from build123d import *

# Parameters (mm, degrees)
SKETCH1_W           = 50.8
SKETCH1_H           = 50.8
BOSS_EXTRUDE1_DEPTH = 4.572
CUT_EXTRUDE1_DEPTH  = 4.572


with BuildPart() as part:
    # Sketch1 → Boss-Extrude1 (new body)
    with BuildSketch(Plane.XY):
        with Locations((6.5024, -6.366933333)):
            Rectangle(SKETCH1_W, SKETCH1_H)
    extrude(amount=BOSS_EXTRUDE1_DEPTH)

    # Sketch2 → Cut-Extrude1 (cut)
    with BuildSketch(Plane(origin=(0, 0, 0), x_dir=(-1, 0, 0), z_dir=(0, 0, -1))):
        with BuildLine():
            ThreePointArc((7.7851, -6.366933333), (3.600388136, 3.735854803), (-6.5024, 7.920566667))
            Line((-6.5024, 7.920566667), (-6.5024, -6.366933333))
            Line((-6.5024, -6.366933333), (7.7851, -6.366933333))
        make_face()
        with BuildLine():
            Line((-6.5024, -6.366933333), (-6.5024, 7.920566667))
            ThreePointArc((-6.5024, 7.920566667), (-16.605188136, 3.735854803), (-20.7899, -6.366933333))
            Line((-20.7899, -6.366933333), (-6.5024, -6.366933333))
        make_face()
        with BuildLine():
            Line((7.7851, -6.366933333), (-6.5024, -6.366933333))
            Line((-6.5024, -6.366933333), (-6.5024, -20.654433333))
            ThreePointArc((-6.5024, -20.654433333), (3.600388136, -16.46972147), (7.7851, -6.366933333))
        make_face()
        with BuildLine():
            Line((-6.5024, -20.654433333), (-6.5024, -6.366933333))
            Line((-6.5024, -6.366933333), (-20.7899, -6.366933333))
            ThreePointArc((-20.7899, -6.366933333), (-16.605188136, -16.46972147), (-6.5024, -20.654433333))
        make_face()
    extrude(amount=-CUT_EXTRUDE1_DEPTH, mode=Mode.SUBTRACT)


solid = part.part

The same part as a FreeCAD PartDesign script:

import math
import FreeCAD as App
import Part
import Sketcher
from FreeCAD import Vector
Q = App.Units.Quantity


def add_polygon(sketch, points):
    """Adds a closed chain of lines whose ends are joined by coincident constraints."""
    first, n = sketch.GeometryCount, len(points)
    for a, b in zip(points, points[1:] + points[:1]):
        sketch.addGeometry(Part.LineSegment(App.Vector(*a, 0), App.Vector(*b, 0)), False)
    for i in range(n):
        sketch.addConstraint(Sketcher.Constraint("Coincident", first + i, 2, first + (i + 1) % n, 1))

doc = App.newDocument("Part")
body = doc.addObject("PartDesign::Body", "Body")

# Sketch on XY plane
sketch1 = body.newObject("Sketcher::SketchObject", "Sketch")
sketch1.AttachmentSupport = (doc.getObject("XY_Plane"), [""])
sketch1.MapMode = "FlatFace"
add_polygon(sketch1, [(-18.8976, 19.033067), (-18.8976, -31.766933), (31.9024, -31.766933), (31.9024, 19.033067)])  # lines 0-3
sketch1.addConstraint([
    Sketcher.Constraint("Vertical", 0),
    Sketcher.Constraint("Horizontal", 1),
    Sketcher.Constraint("Vertical", 2),
    Sketcher.Constraint("Horizontal", 3),
    Sketcher.Constraint("Equal", 3, 0),
    Sketcher.Constraint("DistanceX", 1, 1, 1, 2, Q("2 in")),
    Sketcher.Constraint("DistanceX", 0, 2, -1, 1, Q("0.744 in")),
    Sketcher.Constraint("DistanceY", 0, 2, -1, 1, Q("31.766933 mm")),
])
pad1 = body.newObject("PartDesign::Pad", "Pad")
pad1.Profile = sketch1
pad1.Length = Q("0.18 in")

# Sketch on XY plane
sketch2 = body.newObject("Sketcher::SketchObject", "Sketch001")
sketch2.AttachmentSupport = (doc.getObject("XY_Plane"), [""])
sketch2.MapMode = "FlatFace"
sketch2.addGeometry([
    Part.ArcOfCircle(Part.Circle(Vector(6.5024, -6.366933, 0), Vector(0, 0, 1), 14.2875), math.radians(0), math.radians(90)),
    Part.ArcOfCircle(Part.Circle(Vector(6.5024, -6.366933, 0), Vector(0, 0, 1), 14.2875), math.radians(-90), math.radians(0)),
    Part.ArcOfCircle(Part.Circle(Vector(6.5024, -6.366933, 0), Vector(0, 0, 1), 14.2875), math.radians(180), math.radians(270)),
    Part.ArcOfCircle(Part.Circle(Vector(6.5024, -6.366933, 0), Vector(0, 0, 1), 14.2875), math.radians(90), math.radians(180)),
], False)
sketch2.addConstraint([
    Sketcher.Constraint("Tangent", 0, 1, 1, 2),
    Sketcher.Constraint("Tangent", 1, 1, 2, 2),
    Sketcher.Constraint("Tangent", 2, 1, 3, 2),
    Sketcher.Constraint("Tangent", 3, 1, 0, 2),
    Sketcher.Constraint("Equal", 0, 1),
    Sketcher.Constraint("Horizontal", 3, 3, 0, 1),
    Sketcher.Constraint("Horizontal", 0, 1, 2, 1),
    Sketcher.Constraint("Vertical", 3, 3, 1, 1),
    Sketcher.Constraint("Vertical", 1, 1, 3, 1),
    Sketcher.Constraint("Radius", 0, Q("0.5625 in")),
    Sketcher.Constraint("DistanceX", -1, 1, 0, 3, Q("0.256 in")),
    Sketcher.Constraint("DistanceY", 0, 3, -1, 1, Q("6.366933 mm")),
])
pocket1 = body.newObject("PartDesign::Pocket", "Pocket")
pocket1.Profile = sketch2
pocket1.Length = Q("0.18 in")
pocket1.Reversed = True

doc.recompute()
